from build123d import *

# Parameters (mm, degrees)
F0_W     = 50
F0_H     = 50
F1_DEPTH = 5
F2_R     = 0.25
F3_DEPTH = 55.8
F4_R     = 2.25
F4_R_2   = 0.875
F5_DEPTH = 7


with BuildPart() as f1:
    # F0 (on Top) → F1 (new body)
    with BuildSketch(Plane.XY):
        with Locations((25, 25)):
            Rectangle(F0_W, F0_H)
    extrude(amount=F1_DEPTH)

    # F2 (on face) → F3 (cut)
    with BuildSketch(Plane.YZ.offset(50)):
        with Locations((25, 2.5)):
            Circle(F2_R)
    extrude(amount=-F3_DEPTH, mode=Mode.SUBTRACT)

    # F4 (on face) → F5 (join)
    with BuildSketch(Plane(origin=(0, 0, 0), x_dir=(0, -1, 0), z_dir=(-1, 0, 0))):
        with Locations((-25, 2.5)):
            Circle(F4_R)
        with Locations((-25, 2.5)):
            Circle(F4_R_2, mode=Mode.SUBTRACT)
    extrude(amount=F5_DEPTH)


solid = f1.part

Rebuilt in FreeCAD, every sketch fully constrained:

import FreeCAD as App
import Part
import Sketcher


def add_polygon(sketch, points):
    """Adds a closed chain of lines whose ends are joined by coincident constraints."""
    first, n = sketch.GeometryCount, len(points)
    for a, b in zip(points, points[1:] + points[:1]):
        sketch.addGeometry(Part.LineSegment(App.Vector(*a, 0), App.Vector(*b, 0)), False)
    for i in range(n):
        sketch.addConstraint(Sketcher.Constraint("Coincident", first + i, 2, first + (i + 1) % n, 1))

doc = App.newDocument("Part")
body = doc.addObject("PartDesign::Body", "Body")

# Sketch on XY plane
sketch1 = body.newObject("Sketcher::SketchObject", "Sketch")
sketch1.AttachmentSupport = (doc.getObject("XY_Plane"), [""])
sketch1.MapMode = "FlatFace"
add_polygon(sketch1, [(0, 50), (0, 0), (50, 0), (50, 50)])  # lines 0-3
sketch1.addConstraint([
    Sketcher.Constraint("Vertical", 0),
    Sketcher.Constraint("Horizontal", 1),
    Sketcher.Constraint("Vertical", 2),
    Sketcher.Constraint("Horizontal", 3),
    Sketcher.Constraint("Coincident", 0, 2, -1, 1),
    Sketcher.Constraint("Equal", 3, 0),
    Sketcher.Constraint("DistanceX", 1, 1, 1, 2, 50.0),
])
pad1 = body.newObject("PartDesign::Pad", "Pad")
pad1.Profile = sketch1
pad1.Length = 5

# Sketch on YZ plane
sketch2 = body.newObject("Sketcher::SketchObject", "Sketch001")
sketch2.AttachmentSupport = (doc.getObject("YZ_Plane"), [""])
sketch2.MapMode = "FlatFace"
sketch2.AttachmentOffset = App.Placement(App.Vector(0, 0, 50), App.Rotation())
sketch2.addGeometry(Part.Circle(App.Vector(25, 2.5, 0), App.Vector(0, 0, 1), 0.25), False)
sketch2.addConstraint([
    Sketcher.Constraint("Diameter", 0, 0.5),
    Sketcher.Constraint("DistanceX", -1, 1, 0, 3, 25.0),
    Sketcher.Constraint("DistanceY", -1, 1, 0, 3, 2.5),
])
pocket1 = body.newObject("PartDesign::Pocket", "Pocket")
pocket1.Profile = sketch2
pocket1.Length = 55.8

# Sketch on YZ plane
sketch3 = body.newObject("Sketcher::SketchObject", "Sketch002")
sketch3.AttachmentSupport = (doc.getObject("YZ_Plane"), [""])
sketch3.MapMode = "FlatFace"
sketch3.addGeometry([
    Part.Circle(App.Vector(25, 2.5, 0), App.Vector(0, 0, 1), 2.2),
    Part.Circle(App.Vector(25, 2.5, 0), App.Vector(0, 0, 1), 0.9),
], False)
sketch3.addConstraint([
    Sketcher.Constraint("Coincident", 1, 3, 0, 3),
    Sketcher.Constraint("Diameter", 0, 4.5),
    Sketcher.Constraint("Diameter", 1, 1.75),
    Sketcher.Constraint("DistanceX", -1, 1, 0, 3, 25.0),
    Sketcher.Constraint("DistanceY", -1, 1, 0, 3, 2.5),
])
pad2 = body.newObject("PartDesign::Pad", "Pad001")
pad2.Profile = sketch3
pad2.Length = 7
pad2.Reversed = True

doc.recompute()
